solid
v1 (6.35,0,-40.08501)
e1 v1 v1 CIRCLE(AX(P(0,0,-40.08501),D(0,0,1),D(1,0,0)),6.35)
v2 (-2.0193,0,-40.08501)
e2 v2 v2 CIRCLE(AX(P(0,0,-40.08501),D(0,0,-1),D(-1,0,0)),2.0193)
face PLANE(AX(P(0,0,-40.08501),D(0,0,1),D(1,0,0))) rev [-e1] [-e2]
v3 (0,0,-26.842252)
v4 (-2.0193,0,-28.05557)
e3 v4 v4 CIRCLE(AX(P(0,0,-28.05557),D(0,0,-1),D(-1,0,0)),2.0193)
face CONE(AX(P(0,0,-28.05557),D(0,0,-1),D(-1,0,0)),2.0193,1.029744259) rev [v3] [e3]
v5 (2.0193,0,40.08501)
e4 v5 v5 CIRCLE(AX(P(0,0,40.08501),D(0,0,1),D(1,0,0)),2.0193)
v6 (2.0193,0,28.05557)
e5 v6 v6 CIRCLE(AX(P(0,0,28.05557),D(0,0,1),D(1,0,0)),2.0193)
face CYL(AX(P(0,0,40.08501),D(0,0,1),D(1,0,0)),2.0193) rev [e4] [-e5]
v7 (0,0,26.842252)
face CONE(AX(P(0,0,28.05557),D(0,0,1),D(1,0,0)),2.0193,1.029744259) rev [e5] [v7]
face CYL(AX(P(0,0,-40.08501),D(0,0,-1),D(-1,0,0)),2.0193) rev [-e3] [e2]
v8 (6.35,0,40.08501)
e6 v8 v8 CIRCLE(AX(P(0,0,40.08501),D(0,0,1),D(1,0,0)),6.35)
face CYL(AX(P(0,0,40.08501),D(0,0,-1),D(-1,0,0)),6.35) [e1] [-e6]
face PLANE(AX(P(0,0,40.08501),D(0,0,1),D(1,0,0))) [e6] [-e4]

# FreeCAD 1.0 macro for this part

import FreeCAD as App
import Part
import Sketcher
from FreeCAD import Vector
Q = App.Units.Quantity

doc = App.newDocument("Part")
body = doc.addObject("PartDesign::Body", "Body")

# Sketch on XY plane
sketch1 = body.newObject("Sketcher::SketchObject", "Sketch")
sketch1.AttachmentSupport = (doc.getObject("XY_Plane"), [""])
sketch1.MapMode = "FlatFace"
sketch1.addGeometry(Part.Circle(Vector(0, 0, 0), Vector(0, 0, 1), 6), False)
sketch1.addConstraint(Sketcher.Constraint("Coincident", 0, 3, -1, 1))
sketch1.addConstraint(Sketcher.Constraint("Diameter", 0, Q("0.5 in")))
pad1 = body.newObject("PartDesign::Pad", "Pad")
pad1.Profile = sketch1
pad1.Length = Q("3.1563 in")
pad1.Midplane = True

# Sketch on XY plane
sketch2 = body.newObject("Sketcher::SketchObject", "Sketch001")
sketch2.AttachmentSupport = (doc.getObject("XY_Plane"), [""])
sketch2.MapMode = "FlatFace"
sketch2.AttachmentOffset = App.Placement(Vector(0, 0, -40.08501), App.Rotation())
sketch2.addGeometry(Part.Circle(Vector(0, 0, 0), Vector(0, 0, 1), 2), False)
sketch2.addConstraint(Sketcher.Constraint("Coincident", 0, 3, -1, 1))
sketch2.addConstraint(Sketcher.Constraint("Diameter", 0, Q("0.159 in")))
doc.recompute()
hole = body.newObject("PartDesign::Hole", "Hole")
hole.Profile = sketch2
hole.ThreadType = "None"
hole.Diameter = Q("0.159 in")
hole.DepthType = "Dimension"
hole.Depth = Q("0.4736 in")
hole.DrillPoint = "Angled"
hole.DrillPointAngle = 118
hole.Reversed = True

# Sketch on XY plane
sketch3 = body.newObject("Sketcher::SketchObject", "Sketch002")
sketch3.AttachmentSupport = (doc.getObject("XY_Plane"), [""])
sketch3.MapMode = "FlatFace"
sketch3.AttachmentOffset = App.Placement(Vector(0, 0, 40.08501), App.Rotation())
sketch3.addGeometry(Part.Circle(Vector(0, 0, 0), Vector(0, 0, 1), 2), False)
sketch3.addConstraint(Sketcher.Constraint("Coincident", 0, 3, -1, 1))
sketch3.addConstraint(Sketcher.Constraint("Diameter", 0, Q("0.159 in")))
doc.recompute()
hole2 = body.newObject("PartDesign::Hole", "Hole001")
hole2.Profile = sketch3
hole2.ThreadType = "None"
hole2.Diameter = Q("0.159 in")
hole2.DepthType = "Dimension"
hole2.Depth = Q("0.4736 in")
hole2.DrillPoint = "Angled"
hole2.DrillPointAngle = 118

doc.recompute()
